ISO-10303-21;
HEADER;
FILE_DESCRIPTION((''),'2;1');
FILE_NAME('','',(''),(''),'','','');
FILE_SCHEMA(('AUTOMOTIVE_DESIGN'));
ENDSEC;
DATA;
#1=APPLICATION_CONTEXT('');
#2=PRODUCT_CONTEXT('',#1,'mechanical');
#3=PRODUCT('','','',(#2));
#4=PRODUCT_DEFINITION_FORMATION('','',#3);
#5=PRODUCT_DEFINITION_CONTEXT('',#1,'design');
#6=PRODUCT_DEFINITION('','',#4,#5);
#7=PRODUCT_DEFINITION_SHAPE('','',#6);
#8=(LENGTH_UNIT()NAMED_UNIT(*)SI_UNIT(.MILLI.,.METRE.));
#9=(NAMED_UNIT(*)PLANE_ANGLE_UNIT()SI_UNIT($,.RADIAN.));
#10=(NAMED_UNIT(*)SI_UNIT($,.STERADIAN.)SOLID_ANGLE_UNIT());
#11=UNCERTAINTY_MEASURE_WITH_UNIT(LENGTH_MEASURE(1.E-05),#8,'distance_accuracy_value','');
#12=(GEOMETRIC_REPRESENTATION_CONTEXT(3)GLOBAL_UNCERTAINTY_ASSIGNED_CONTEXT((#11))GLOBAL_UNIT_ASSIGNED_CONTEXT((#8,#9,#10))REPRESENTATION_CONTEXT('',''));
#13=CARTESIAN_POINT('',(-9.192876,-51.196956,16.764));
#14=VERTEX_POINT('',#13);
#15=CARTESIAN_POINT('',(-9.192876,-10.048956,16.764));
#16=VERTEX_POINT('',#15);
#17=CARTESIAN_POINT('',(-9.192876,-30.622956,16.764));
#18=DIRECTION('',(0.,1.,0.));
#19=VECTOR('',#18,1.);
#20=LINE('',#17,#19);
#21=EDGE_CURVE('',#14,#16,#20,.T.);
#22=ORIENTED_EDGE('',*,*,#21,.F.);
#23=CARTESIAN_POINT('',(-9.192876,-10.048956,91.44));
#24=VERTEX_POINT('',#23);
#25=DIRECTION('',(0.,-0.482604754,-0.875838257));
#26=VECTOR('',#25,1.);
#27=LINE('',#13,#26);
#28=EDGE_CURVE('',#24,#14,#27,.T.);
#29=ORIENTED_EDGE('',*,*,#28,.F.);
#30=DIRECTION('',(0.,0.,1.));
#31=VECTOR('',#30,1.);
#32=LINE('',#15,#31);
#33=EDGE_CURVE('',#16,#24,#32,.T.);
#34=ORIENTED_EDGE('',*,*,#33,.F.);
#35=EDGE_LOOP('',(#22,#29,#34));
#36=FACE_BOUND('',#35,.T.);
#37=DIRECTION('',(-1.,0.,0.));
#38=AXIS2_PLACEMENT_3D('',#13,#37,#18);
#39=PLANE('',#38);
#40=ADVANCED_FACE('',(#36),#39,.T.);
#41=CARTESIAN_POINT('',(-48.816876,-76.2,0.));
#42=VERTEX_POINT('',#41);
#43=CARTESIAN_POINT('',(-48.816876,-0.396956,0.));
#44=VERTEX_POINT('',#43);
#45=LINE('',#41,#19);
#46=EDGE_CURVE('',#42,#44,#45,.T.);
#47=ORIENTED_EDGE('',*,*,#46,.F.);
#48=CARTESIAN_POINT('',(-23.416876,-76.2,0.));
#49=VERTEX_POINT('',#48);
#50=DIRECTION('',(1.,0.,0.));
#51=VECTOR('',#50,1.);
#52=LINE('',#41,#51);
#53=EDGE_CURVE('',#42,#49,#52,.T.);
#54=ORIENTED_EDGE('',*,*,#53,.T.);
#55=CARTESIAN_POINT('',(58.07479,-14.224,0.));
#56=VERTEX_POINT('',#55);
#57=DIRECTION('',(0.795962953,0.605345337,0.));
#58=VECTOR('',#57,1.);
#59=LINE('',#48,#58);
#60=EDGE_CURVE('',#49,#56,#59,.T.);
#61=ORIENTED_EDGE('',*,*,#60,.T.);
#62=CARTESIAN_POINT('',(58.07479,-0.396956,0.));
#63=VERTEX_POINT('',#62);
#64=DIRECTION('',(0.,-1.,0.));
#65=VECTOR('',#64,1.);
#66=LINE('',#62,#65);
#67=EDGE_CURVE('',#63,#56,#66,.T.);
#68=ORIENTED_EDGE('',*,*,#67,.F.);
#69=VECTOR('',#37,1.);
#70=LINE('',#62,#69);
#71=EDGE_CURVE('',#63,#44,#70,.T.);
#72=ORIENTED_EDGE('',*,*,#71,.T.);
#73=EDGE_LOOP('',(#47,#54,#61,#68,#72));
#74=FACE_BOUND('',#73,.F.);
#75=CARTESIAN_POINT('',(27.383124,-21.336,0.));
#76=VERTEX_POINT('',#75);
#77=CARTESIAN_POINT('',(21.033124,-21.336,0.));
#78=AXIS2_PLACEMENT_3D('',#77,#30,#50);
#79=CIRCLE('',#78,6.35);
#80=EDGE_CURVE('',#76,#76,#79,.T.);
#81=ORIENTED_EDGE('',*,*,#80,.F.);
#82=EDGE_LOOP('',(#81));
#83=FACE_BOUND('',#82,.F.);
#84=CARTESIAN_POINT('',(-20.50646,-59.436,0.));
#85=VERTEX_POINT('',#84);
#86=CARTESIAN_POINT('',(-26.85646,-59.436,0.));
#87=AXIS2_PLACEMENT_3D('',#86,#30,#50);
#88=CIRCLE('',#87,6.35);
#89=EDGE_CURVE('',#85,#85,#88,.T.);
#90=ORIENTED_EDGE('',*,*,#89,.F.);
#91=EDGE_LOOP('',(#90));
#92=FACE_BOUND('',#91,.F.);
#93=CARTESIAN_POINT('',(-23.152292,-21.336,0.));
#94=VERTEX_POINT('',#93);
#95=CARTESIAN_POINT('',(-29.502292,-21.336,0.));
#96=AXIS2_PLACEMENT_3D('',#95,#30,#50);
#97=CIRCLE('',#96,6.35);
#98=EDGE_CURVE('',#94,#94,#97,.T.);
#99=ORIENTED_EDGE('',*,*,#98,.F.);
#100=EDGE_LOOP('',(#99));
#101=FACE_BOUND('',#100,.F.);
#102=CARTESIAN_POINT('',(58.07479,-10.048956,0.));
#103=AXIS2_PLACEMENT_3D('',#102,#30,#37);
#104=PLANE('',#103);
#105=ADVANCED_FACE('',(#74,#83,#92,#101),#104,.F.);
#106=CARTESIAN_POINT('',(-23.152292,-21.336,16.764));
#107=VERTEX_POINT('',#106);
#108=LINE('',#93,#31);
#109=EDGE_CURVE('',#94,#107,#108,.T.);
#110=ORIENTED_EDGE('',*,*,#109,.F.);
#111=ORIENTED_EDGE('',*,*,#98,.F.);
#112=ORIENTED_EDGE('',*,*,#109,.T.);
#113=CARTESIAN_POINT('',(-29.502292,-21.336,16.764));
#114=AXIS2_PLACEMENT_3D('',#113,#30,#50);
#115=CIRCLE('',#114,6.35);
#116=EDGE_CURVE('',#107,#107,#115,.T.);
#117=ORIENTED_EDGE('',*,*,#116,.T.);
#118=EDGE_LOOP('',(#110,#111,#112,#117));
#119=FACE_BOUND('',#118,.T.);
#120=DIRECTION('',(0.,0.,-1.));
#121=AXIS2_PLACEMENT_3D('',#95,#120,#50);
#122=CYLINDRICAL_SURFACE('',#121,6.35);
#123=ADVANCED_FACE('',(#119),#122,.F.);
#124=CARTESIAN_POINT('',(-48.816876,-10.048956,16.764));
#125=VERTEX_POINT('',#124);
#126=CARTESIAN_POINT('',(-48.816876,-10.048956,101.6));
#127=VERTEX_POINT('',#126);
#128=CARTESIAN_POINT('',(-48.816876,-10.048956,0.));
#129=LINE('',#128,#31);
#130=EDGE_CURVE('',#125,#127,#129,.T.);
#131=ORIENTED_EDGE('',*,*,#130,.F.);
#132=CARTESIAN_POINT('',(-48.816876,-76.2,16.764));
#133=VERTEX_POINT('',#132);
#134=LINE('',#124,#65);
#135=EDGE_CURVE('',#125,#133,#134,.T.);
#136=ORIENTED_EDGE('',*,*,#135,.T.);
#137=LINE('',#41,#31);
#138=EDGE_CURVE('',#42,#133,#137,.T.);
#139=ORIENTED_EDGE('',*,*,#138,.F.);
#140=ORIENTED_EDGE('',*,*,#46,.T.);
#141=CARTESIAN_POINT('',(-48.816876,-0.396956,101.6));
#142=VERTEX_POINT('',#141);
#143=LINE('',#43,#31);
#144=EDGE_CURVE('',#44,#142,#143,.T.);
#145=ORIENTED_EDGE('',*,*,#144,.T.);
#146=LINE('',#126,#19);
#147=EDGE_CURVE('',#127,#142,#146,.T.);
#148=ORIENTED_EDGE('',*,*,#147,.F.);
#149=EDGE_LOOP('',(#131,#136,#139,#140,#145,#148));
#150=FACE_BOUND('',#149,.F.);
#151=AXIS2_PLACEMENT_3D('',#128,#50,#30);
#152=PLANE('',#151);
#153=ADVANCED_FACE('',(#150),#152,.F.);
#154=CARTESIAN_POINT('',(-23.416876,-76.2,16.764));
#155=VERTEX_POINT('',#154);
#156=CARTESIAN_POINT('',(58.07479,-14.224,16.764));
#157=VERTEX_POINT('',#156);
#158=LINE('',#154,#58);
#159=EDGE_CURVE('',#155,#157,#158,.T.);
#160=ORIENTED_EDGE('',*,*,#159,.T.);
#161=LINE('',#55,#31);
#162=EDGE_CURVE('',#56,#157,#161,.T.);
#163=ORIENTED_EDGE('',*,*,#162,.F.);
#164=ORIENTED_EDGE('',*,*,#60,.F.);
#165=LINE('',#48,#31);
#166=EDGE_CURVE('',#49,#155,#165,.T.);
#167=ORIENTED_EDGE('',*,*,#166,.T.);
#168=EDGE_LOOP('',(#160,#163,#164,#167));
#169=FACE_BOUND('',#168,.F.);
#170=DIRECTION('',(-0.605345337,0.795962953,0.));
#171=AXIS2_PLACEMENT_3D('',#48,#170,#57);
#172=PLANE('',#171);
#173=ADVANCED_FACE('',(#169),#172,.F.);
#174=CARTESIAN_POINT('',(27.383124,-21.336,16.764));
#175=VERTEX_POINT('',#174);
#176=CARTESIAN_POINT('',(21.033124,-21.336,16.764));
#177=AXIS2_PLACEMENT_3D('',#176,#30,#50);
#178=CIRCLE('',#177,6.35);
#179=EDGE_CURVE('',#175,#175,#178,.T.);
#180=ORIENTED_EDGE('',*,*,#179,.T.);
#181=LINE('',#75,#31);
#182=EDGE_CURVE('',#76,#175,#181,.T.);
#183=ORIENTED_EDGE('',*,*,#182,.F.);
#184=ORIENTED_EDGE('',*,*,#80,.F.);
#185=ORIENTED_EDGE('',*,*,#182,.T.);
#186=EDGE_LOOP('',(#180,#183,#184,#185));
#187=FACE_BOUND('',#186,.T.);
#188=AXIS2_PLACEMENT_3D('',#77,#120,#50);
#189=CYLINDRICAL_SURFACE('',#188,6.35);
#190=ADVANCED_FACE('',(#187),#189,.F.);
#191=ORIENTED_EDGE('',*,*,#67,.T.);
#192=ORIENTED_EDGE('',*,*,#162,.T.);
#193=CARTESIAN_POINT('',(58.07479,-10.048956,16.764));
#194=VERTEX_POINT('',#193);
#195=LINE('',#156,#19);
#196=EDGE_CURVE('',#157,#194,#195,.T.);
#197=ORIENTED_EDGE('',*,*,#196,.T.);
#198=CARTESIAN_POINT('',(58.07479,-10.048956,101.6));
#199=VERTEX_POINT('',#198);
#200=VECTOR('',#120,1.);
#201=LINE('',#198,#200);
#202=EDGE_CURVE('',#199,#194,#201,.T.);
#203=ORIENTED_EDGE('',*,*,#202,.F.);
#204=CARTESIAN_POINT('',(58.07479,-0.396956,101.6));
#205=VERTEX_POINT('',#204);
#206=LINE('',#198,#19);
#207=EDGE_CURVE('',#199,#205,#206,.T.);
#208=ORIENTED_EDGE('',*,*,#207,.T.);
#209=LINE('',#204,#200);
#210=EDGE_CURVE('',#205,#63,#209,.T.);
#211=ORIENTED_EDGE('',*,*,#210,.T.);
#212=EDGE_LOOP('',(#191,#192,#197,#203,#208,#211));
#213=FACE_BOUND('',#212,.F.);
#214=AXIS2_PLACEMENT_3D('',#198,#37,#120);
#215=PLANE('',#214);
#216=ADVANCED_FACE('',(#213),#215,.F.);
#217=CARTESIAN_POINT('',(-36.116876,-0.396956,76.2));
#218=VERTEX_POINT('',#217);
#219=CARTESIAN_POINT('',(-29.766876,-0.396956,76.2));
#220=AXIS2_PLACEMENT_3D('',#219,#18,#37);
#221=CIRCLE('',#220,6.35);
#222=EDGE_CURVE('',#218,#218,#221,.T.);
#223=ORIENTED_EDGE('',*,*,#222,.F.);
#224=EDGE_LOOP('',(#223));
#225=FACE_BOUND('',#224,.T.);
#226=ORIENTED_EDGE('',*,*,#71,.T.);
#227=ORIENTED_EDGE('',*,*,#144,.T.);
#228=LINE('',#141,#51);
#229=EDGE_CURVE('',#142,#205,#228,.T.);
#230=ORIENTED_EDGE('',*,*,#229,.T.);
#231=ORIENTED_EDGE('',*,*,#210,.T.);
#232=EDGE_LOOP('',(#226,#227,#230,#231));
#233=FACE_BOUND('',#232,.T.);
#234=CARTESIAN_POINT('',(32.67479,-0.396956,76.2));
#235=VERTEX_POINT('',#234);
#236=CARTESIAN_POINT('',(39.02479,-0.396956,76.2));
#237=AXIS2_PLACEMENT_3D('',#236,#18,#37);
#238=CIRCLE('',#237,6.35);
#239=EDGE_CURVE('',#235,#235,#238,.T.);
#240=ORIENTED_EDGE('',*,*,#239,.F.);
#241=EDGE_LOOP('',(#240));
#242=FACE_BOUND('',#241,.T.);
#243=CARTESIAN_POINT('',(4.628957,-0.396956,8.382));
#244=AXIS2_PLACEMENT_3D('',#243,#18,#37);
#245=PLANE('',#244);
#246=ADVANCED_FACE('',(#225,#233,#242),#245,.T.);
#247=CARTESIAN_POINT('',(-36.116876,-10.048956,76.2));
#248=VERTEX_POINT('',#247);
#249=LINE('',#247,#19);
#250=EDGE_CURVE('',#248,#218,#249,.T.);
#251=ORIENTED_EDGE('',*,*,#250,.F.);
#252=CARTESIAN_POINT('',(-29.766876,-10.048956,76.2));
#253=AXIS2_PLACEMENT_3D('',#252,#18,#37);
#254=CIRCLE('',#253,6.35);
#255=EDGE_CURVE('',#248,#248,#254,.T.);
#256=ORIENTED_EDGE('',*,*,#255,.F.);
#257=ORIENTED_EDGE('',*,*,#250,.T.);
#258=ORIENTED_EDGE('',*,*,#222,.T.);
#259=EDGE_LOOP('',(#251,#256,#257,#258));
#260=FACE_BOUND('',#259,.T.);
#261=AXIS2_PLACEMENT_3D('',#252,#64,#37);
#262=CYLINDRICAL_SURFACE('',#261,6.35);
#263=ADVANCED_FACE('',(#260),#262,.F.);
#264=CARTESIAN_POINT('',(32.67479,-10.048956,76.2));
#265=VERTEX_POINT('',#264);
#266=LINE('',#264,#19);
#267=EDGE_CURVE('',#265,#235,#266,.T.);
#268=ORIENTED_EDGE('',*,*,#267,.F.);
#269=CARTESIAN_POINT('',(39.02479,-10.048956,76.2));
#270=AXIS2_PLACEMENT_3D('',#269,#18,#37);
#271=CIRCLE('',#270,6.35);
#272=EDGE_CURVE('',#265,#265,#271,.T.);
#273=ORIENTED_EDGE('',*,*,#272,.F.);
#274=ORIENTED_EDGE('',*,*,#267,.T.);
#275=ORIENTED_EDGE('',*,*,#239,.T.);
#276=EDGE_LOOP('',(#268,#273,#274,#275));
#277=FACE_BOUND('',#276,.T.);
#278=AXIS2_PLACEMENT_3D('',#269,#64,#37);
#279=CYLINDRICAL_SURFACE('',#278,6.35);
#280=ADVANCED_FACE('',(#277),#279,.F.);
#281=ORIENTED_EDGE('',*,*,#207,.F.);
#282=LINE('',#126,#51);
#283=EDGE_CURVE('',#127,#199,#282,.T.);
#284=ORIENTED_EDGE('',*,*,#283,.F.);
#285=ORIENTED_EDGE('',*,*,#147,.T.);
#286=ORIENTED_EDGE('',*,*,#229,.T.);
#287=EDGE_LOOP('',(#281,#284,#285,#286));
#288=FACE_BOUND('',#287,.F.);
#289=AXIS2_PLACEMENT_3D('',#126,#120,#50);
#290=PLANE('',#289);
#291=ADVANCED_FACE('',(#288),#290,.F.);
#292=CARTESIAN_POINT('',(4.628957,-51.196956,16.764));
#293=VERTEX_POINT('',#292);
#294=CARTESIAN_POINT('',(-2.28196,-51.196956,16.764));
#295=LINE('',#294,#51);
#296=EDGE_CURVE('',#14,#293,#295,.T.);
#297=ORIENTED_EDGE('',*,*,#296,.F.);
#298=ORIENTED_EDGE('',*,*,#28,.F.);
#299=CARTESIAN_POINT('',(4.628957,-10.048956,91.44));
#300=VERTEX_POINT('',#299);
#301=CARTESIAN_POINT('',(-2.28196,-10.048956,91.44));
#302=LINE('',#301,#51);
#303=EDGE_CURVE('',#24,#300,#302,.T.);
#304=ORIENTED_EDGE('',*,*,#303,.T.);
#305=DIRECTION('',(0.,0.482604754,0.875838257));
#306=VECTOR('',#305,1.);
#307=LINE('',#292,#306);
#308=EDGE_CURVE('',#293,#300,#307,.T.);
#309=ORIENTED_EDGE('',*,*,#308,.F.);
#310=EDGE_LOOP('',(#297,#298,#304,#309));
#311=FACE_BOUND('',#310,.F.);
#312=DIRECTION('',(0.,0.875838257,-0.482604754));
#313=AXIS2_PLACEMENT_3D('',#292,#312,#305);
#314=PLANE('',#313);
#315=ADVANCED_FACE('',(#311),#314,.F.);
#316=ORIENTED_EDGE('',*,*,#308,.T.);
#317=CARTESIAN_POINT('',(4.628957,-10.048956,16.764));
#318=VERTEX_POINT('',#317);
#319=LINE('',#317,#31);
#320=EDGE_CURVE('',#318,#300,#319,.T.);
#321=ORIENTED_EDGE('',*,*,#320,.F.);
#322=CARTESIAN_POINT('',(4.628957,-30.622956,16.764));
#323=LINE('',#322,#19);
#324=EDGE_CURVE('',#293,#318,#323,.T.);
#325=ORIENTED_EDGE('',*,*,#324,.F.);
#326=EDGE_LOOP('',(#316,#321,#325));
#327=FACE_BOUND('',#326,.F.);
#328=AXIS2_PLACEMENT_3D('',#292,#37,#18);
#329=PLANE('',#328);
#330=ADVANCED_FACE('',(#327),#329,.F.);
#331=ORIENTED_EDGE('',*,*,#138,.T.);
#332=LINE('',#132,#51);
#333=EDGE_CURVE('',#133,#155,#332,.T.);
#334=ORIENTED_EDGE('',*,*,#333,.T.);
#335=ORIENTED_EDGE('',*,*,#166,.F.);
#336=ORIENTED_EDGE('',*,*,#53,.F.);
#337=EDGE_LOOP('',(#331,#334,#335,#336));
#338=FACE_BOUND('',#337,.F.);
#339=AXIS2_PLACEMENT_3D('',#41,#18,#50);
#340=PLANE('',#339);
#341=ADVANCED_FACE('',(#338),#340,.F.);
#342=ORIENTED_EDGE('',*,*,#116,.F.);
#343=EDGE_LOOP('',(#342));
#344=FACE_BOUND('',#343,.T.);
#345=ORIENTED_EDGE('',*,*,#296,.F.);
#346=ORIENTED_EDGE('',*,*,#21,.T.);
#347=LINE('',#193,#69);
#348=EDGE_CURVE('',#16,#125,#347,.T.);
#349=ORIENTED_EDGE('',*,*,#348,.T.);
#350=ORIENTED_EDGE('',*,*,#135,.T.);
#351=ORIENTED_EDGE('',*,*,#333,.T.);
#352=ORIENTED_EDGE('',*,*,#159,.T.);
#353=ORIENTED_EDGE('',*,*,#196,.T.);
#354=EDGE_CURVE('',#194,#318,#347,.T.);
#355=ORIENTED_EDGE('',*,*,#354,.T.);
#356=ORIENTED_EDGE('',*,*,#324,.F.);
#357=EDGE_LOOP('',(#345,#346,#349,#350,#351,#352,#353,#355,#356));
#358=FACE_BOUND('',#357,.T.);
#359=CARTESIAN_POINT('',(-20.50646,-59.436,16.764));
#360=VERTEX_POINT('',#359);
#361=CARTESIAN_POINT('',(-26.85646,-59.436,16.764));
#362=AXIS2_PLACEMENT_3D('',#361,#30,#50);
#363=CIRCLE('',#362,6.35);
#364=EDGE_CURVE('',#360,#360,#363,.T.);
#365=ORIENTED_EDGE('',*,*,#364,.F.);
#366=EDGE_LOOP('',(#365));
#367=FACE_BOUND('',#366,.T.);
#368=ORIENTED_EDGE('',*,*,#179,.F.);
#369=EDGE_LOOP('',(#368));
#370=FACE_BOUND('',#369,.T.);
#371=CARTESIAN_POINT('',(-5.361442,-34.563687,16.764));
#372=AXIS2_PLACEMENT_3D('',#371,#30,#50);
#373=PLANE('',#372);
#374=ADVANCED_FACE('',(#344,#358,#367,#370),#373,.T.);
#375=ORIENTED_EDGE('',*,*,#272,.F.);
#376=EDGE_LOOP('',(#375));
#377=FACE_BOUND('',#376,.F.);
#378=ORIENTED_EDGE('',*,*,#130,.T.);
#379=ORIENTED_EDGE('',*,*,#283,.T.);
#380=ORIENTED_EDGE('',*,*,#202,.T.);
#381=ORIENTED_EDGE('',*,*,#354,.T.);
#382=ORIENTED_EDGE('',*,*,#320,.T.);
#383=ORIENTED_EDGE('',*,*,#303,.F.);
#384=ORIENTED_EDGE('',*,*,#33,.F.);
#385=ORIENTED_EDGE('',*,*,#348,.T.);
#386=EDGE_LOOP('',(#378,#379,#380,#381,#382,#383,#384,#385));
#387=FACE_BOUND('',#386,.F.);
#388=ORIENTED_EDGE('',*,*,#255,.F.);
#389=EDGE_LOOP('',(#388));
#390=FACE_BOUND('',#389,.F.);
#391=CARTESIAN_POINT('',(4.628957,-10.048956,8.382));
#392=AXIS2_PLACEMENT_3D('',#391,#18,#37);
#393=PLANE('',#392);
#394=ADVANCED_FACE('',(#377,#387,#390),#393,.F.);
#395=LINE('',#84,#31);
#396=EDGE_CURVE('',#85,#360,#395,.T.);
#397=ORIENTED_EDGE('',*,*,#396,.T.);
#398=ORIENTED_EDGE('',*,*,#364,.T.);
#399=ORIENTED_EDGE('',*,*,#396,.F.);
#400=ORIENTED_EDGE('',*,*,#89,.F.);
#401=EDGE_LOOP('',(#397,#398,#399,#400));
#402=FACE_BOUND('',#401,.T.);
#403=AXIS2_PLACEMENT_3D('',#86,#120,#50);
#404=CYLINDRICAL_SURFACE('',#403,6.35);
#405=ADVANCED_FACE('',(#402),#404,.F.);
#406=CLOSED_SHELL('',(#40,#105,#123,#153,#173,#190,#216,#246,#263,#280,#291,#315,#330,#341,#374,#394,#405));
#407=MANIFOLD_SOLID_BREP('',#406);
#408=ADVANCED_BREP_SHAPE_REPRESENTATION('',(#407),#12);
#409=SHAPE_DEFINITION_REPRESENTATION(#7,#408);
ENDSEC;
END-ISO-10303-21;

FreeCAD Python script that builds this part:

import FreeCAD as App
import Part
import Sketcher
Q = App.Units.Quantity

doc = App.newDocument("Part")
body = doc.addObject("PartDesign::Body", "Body")

# Sketch on XY plane
sketch1 = body.newObject("Sketcher::SketchObject", "Sketch")
sketch1.AttachmentSupport = (doc.getObject("XY_Plane"), [""])
sketch1.MapMode = "FlatFace"
sketch1.addGeometry([
    Part.LineSegment(App.Vector(58.1, -10, 0), App.Vector(-48.8, -10, 0)),  # 0
    Part.LineSegment(App.Vector(-48.8, -10, 0), App.Vector(-48.8, -76.2, 0)),  # 1
    Part.LineSegment(App.Vector(-48.8, -76.2, 0), App.Vector(-23.4, -76.2, 0)),  # 2
    Part.LineSegment(App.Vector(-23.4, -76.2, 0), App.Vector(58.1, -14.2, 0)),  # 3
    Part.LineSegment(App.Vector(58.1, -14.2, 0), App.Vector(58.1, -10, 0)),  # 4
    Part.Circle(App.Vector(-26.9, -59.4, 0), App.Vector(0, 0, 1), 6.3),  # 5
    Part.Circle(App.Vector(-29.5, -21.3, 0), App.Vector(0, 0, 1), 6.3),  # 6
    Part.Circle(App.Vector(21, -21.3, 0), App.Vector(0, 0, 1), 6.3),  # 7
], False)
sketch1.addConstraint([
    Sketcher.Constraint("Coincident", 0, 2, 1, 1),
    Sketcher.Constraint("Coincident", 1, 2, 2, 1),
    Sketcher.Constraint("Coincident", 2, 2, 3, 1),
    Sketcher.Constraint("Coincident", 3, 2, 4, 1),
    Sketcher.Constraint("Coincident", 4, 2, 0, 1),
    Sketcher.Constraint("Horizontal", 0),
    Sketcher.Constraint("Vertical", 1),
    Sketcher.Constraint("Horizontal", 2),
    Sketcher.Constraint("Vertical", 4),
    Sketcher.Constraint("Equal", 5, 6),
    Sketcher.Constraint("Equal", 6, 7),
    Sketcher.Constraint("Horizontal", 6, 3, 7, 3),
    Sketcher.Constraint("Diameter", 5, Q("0.5 in")),
    Sketcher.Constraint("DistanceX", 2, 1, 2, 2, Q("1 in")),
    Sketcher.Constraint("DistanceY", 1, 2, -1, 1, Q("3 in")),
    Sketcher.Constraint("DistanceY", 5, 3, 6, 3, Q("1.5 in")),
    Sketcher.Constraint("DistanceY", 5, 3, -1, 1, Q("2.34 in")),
    Sketcher.Constraint("DistanceY", 3, 2, -1, 1, Q("0.56 in")),
    Sketcher.Constraint("DistanceX", 0, 2, 7, 3, Q("2.75 in")),
    Sketcher.Constraint("DistanceX", 5, 3, 3, 2, Q("3.34375 in")),
    Sketcher.Constraint("Distance", 3, Q("102.38123 mm")),
    Sketcher.Constraint("DistanceY", 1, 2, 1, 1, Q("66.151044 mm")),
    Sketcher.Constraint("DistanceX", 5, 3, -1, 1, Q("26.85646 mm")),
    Sketcher.Constraint("DistanceX", 6, 3, -1, 1, Q("29.502292 mm")),
])
pad1 = body.newObject("PartDesign::Pad", "Pad")
pad1.Profile = sketch1
pad1.Length = Q("0.66 in")

# Sketch on XZ plane
sketch2 = body.newObject("Sketcher::SketchObject", "Sketch001")
sketch2.AttachmentSupport = (doc.getObject("XZ_Plane"), [""])
sketch2.MapMode = "FlatFace"
sketch2.AttachmentOffset = App.Placement(App.Vector(0, 0, 10.048956), App.Rotation())
sketch2.addGeometry([
    Part.LineSegment(App.Vector(58, 0, 0), App.Vector(-49, 0, 0)),  # 0
    Part.LineSegment(App.Vector(-49, 0, 0), App.Vector(-49, 102, 0)),  # 1
    Part.LineSegment(App.Vector(-49, 102, 0), App.Vector(58, 102, 0)),  # 2
    Part.LineSegment(App.Vector(58, 102, 0), App.Vector(58, 0, 0)),  # 3
    Part.Circle(App.Vector(39, 76, 0), App.Vector(0, 0, 1), 6),  # 4
    Part.Circle(App.Vector(-30, 76, 0), App.Vector(0, 0, 1), 6),  # 5
], False)
sketch2.addConstraint([
    Sketcher.Constraint("Coincident", 0, 2, 1, 1),
    Sketcher.Constraint("Coincident", 1, 2, 2, 1),
    Sketcher.Constraint("Coincident", 2, 2, 3, 1),
    Sketcher.Constraint("Coincident", 3, 2, 0, 1),
    Sketcher.Constraint("Horizontal", 0),
    Sketcher.Constraint("Vertical", 1),
    Sketcher.Constraint("Horizontal", 2),
    Sketcher.Constraint("Vertical", 3),
    Sketcher.Constraint("Equal", 4, 5),
    Sketcher.Constraint("PointOnObject", 0, 2, -1),
    Sketcher.Constraint("Horizontal", 4, 3, 5, 3),
    Sketcher.Constraint("Diameter", 4, Q("0.5 in")),
    Sketcher.Constraint("DistanceY", 1, 1, 1, 2, Q("4 in")),
    Sketcher.Constraint("DistanceY", -1, 1, 4, 3, Q("3 in")),
    Sketcher.Constraint("DistanceX", 0, 2, 5, 3, Q("0.75 in")),
    Sketcher.Constraint("DistanceX", 4, 3, 2, 2, Q("0.75 in")),
    Sketcher.Constraint("DistanceX", 0, 2, 0, 1, Q("106.891666 mm")),
    Sketcher.Constraint("DistanceX", -1, 1, 4, 3, Q("39.02479 mm")),
])
pad2 = body.newObject("PartDesign::Pad", "Pad001")
pad2.Profile = sketch2
pad2.Length = Q("0.38 in")
pad2.Reversed = True

# Sketch on XY plane
sketch3 = body.newObject("Sketcher::SketchObject", "Sketch002")
sketch3.AttachmentSupport = (doc.getObject("XY_Plane"), [""])
sketch3.MapMode = "FlatFace"
sketch3.AttachmentOffset = App.Placement(App.Vector(0, 0, 0.66 * 25.4), App.Rotation())
sketch3.addGeometry([
    Part.LineSegment(App.Vector(-9, -10, 0), App.Vector(-9, -51, 0)),
    Part.LineSegment(App.Vector(-9, -51, 0), App.Vector(5, -51, 0)),
    Part.LineSegment(App.Vector(5, -51, 0), App.Vector(5, -10, 0)),
    Part.LineSegment(App.Vector(5, -10, 0), App.Vector(-9, -10, 0)),
], False)
sketch3.addConstraint([
    Sketcher.Constraint("Coincident", 0, 2, 1, 1),
    Sketcher.Constraint("Coincident", 1, 2, 2, 1),
    Sketcher.Constraint("Coincident", 2, 2, 3, 1),
    Sketcher.Constraint("Coincident", 3, 2, 0, 1),
    Sketcher.Constraint("Vertical", 0),
    Sketcher.Constraint("Horizontal", 1),
    Sketcher.Constraint("Vertical", 2),
    Sketcher.Constraint("Horizontal", 3),
    Sketcher.Constraint("DistanceY", 0, 2, 0, 1, Q("1.62 in")),
    Sketcher.Constraint("DistanceX", 1, 1, 1, 2, Q("13.821833 mm")),
    Sketcher.Constraint("DistanceX", 0, 2, -1, 1, Q("9.192876 mm")),
    Sketcher.Constraint("DistanceY", 0, 2, -1, 1, Q("51.196956 mm")),
])
pad3 = body.newObject("PartDesign::Pad", "Pad002")
pad3.Profile = sketch3
pad3.Length = Q("2.94 in")

# Sketch on YZ plane
sketch4 = body.newObject("Sketcher::SketchObject", "Sketch003")
sketch4.AttachmentSupport = (doc.getObject("YZ_Plane"), [""])
sketch4.MapMode = "FlatFace"
sketch4.AttachmentOffset = App.Placement(App.Vector(0, 0, 4.628957), App.Rotation())
sketch4.addGeometry([
    Part.LineSegment(App.Vector(-51, 91, 0), App.Vector(-51, 17, 0)),
    Part.LineSegment(App.Vector(-51, 17, 0), App.Vector(-10, 91, 0)),
    Part.LineSegment(App.Vector(-10, 91, 0), App.Vector(-51, 91, 0)),
], False)
sketch4.addConstraint([
    Sketcher.Constraint("Coincident", 0, 2, 1, 1),
    Sketcher.Constraint("Coincident", 1, 2, 2, 1),
    Sketcher.Constraint("Coincident", 2, 2, 0, 1),
    Sketcher.Constraint("Vertical", 0),
    Sketcher.Constraint("Horizontal", 2),
    Sketcher.Constraint("DistanceX", 2, 2, 2, 1, Q("1.62 in")),
    Sketcher.Constraint("DistanceY", 0, 2, 0, 1, Q("2.94 in")),
    Sketcher.Constraint("DistanceY", -1, 1, 1, 2, Q("3.6 in")),
    Sketcher.Constraint("DistanceX", 0, 2, -1, 1, Q("51.196956 mm")),
])
pocket1 = body.newObject("PartDesign::Pocket", "Pocket")
pocket1.Profile = sketch4
pocket1.Length = 53.04913

doc.recompute()
